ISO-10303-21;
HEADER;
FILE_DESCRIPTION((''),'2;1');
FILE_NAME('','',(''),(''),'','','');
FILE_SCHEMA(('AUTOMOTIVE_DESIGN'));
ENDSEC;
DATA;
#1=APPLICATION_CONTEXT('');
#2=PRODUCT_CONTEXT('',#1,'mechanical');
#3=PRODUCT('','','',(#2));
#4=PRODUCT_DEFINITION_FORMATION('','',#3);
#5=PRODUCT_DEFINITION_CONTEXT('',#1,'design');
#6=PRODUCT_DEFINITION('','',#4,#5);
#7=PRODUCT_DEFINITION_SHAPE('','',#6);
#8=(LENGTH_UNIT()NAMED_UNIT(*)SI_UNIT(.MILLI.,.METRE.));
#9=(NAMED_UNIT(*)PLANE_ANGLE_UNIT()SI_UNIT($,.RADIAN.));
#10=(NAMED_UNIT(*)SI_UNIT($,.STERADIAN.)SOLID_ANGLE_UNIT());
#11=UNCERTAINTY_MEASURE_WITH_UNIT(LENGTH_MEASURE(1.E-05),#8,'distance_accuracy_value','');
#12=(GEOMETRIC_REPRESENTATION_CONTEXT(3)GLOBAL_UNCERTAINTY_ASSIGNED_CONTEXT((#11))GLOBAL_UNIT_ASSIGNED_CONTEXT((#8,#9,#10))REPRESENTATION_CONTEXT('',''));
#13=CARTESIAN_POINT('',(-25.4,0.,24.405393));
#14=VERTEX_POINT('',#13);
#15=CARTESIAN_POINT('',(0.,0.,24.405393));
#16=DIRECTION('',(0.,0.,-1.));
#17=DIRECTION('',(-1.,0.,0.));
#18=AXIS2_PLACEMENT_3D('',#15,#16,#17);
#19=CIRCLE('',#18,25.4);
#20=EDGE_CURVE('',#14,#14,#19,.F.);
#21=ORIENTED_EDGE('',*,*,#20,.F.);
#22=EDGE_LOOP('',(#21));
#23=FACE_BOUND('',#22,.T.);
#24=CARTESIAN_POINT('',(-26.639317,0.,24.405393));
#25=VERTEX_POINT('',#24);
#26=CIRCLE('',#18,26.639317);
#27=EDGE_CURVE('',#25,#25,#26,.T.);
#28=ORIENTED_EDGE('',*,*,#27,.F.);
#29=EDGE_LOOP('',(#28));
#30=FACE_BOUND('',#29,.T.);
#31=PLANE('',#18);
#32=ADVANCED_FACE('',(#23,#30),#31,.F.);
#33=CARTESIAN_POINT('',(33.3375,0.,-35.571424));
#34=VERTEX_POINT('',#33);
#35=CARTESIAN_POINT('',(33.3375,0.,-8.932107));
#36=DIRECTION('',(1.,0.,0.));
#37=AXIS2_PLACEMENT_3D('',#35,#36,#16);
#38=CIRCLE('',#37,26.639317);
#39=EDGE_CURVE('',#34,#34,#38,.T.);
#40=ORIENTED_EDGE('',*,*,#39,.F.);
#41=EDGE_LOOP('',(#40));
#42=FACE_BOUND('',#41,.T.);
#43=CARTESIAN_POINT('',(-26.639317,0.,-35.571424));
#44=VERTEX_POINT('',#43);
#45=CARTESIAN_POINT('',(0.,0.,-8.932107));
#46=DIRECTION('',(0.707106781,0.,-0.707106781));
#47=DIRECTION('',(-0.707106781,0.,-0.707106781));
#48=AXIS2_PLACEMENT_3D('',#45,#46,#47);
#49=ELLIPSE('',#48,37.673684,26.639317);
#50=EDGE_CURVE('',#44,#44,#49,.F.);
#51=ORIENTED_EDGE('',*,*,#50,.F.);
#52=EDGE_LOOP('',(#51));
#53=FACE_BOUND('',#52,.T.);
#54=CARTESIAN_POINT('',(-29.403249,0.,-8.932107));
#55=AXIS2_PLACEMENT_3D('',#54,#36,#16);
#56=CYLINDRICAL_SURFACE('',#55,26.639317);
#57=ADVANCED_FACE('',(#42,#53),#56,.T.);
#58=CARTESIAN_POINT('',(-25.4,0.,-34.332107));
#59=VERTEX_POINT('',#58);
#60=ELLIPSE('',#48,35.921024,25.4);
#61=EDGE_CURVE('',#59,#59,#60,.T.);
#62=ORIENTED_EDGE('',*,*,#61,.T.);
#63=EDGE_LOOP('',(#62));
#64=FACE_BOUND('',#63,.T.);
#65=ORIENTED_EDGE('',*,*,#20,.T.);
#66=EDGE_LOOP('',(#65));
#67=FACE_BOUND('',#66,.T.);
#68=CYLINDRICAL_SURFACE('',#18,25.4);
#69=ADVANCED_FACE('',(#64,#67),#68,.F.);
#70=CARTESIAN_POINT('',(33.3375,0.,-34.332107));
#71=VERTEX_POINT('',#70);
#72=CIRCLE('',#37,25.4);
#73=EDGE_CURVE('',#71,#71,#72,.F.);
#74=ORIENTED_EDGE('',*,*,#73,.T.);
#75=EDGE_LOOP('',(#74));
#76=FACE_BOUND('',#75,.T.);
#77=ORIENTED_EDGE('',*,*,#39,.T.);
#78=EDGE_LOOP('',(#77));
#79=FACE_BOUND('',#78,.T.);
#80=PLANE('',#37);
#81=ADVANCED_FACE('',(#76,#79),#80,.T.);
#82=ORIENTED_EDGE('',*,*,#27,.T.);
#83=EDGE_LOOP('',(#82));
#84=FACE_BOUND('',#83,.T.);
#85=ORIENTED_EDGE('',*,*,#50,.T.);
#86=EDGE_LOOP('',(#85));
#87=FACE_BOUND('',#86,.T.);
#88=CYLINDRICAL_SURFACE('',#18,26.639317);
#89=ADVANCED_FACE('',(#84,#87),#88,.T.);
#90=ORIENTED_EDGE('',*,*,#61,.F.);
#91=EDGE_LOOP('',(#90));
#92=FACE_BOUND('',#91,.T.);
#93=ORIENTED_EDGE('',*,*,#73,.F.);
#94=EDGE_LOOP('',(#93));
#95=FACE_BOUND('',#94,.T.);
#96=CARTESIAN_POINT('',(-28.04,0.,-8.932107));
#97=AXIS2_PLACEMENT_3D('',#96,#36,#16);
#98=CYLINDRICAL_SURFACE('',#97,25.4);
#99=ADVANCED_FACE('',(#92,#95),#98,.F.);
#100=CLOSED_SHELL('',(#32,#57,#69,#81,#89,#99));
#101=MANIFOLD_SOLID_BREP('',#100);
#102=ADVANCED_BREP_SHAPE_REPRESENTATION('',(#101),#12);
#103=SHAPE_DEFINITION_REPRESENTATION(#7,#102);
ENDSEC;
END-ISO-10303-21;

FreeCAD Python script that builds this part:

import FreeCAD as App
import Part
import Sketcher

V = App.Vector
Q = App.Units.Quantity

doc = App.newDocument("Part")
body = doc.addObject("PartDesign::Body", "Body")

sketch1 = body.newObject("Sketcher::SketchObject", "Sketch")
sketch1.AttachmentSupport = (doc.getObject("YZ_Plane"), [""])
sketch1.MapMode = "FlatFace"
sketch1.AttachmentOffset = App.Placement(V(0, 0, 1.3125 * 25.4), App.Rotation())
sketch1.addGeometry([
    Part.Circle(V(0, -9, 0), V(0, 0, 1), 27),
    Part.Circle(V(0, -9, 0), V(0, 0, 1), 25),
], False)
sketch1.addConstraint([
    Sketcher.Constraint("Coincident", 1, 3, 0, 3),
    Sketcher.Constraint("PointOnObject", 0, 3, -2),
    Sketcher.Constraint("Diameter", 1, Q("2 in")),
    Sketcher.Constraint("Diameter", 0, 53.278635),
    Sketcher.Constraint("DistanceY", 0, 3, -1, 1, 8.932107),
])

sketch2 = body.newObject("Sketcher::SketchObject", "Sketch001")
sketch2.AttachmentSupport = (doc.getObject("XZ_Plane"), [""])
sketch2.MapMode = "FlatFace"
sketch2.addGeometry([
    Part.LineSegment(V(0, 24, 0), V(0, -9, 0)),
    Part.LineSegment(V(0, -9, 0), V(33, -9, 0)),
], False)
sketch2.addConstraint([
    Sketcher.Constraint("Coincident", 0, 2, 1, 1),
    Sketcher.Constraint("Vertical", 0),
    Sketcher.Constraint("Horizontal", 1),
    Sketcher.Constraint("PointOnObject", 0, 1, -2),
    Sketcher.Constraint("Equal", 1, 0),
    Sketcher.Constraint("DistanceX", 1, 1, 1, 2, Q("1.3125 in")),
    Sketcher.Constraint("DistanceY", -1, 1, 0, 1, 24.405393),
])
doc.recompute()

additivepipe = body.newObject("PartDesign::AdditivePipe", "AdditivePipe")
additivepipe.Profile = sketch1
additivepipe.Spine = (sketch2, ["Edge1", "Edge2"])
additivepipe.Transition = "Right corner"

doc.recompute()
